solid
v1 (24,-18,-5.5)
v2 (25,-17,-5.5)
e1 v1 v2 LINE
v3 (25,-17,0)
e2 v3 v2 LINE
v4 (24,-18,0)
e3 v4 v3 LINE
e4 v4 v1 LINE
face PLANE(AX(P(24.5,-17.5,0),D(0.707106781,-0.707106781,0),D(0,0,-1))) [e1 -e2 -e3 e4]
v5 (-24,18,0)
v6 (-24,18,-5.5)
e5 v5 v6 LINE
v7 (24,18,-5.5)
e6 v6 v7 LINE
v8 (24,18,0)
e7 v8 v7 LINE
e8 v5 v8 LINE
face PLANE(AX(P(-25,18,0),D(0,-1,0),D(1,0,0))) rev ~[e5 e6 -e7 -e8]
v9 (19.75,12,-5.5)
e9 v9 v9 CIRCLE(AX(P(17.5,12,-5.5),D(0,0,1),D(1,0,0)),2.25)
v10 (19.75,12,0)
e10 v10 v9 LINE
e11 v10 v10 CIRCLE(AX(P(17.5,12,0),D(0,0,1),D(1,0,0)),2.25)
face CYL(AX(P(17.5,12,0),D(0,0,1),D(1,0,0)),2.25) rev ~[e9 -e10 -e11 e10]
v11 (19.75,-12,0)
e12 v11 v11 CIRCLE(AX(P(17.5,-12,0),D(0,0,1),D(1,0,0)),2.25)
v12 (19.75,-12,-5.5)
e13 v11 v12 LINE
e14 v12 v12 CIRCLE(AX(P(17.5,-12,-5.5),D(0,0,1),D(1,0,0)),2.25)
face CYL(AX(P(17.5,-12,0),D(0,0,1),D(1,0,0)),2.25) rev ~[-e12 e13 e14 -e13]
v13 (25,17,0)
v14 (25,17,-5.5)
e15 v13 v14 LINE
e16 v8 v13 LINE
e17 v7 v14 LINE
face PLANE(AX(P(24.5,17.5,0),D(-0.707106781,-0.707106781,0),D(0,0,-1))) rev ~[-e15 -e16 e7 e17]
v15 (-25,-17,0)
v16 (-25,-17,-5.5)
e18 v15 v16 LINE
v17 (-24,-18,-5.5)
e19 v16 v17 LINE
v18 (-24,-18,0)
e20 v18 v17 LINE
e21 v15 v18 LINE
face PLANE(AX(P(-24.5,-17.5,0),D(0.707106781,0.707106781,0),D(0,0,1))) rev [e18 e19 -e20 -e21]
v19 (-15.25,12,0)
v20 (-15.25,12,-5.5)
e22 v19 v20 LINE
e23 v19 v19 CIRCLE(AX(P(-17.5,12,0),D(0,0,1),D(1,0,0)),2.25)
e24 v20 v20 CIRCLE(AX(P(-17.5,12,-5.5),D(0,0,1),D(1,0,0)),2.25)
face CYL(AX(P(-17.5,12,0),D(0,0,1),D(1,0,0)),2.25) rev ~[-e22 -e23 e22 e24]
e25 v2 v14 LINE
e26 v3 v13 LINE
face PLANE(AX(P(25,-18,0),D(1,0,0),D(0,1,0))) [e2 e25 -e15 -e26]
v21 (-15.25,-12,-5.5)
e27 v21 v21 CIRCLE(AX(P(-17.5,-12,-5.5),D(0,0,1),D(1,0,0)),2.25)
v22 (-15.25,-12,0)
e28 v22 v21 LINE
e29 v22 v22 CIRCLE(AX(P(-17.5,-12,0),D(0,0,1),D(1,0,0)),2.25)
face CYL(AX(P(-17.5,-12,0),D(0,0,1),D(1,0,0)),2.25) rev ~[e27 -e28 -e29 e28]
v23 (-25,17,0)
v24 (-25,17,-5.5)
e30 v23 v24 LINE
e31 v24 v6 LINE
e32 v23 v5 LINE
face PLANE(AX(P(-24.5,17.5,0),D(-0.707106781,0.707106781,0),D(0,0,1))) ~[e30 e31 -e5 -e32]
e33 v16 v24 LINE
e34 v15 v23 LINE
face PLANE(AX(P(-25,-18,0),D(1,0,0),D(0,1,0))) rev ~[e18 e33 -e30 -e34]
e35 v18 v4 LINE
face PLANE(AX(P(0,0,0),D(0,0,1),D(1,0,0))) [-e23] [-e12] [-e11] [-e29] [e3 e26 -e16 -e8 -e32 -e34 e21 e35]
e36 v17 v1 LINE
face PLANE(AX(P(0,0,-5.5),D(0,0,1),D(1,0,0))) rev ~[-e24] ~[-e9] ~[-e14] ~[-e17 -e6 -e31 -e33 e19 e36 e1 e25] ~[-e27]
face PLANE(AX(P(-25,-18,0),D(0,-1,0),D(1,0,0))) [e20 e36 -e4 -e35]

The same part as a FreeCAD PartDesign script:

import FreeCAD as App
import Part
import Sketcher

V = App.Vector
Q = App.Units.Quantity


def edges_at(feature, points):
    """Names of the edges that pass closest to the given points."""
    edges = feature.Shape.Edges
    near = lambda p: min(range(len(edges)), key=lambda i: edges[i].distToShape(Part.Vertex(*p))[0])
    return sorted({f"Edge{near(p) + 1}" for p in points})

doc = App.newDocument("Part")
body = doc.addObject("PartDesign::Body", "Body")

# Sketch on XY plane
sketch1 = body.newObject("Sketcher::SketchObject", "Sketch")
sketch1.AttachmentSupport = (doc.getObject("XY_Plane"), [""])
sketch1.MapMode = "FlatFace"
sketch1.addGeometry([
    Part.LineSegment(V(-25, 18, 0), V(-25, -18, 0)),
    Part.LineSegment(V(-25, -18, 0), V(25, -18, 0)),
    Part.LineSegment(V(25, -18, 0), V(25, 18, 0)),
    Part.LineSegment(V(25, 18, 0), V(-25, 18, 0)),
], False)
sketch1.addConstraint([
    Sketcher.Constraint("Coincident", 0, 2, 1, 1),
    Sketcher.Constraint("Coincident", 1, 2, 2, 1),
    Sketcher.Constraint("Coincident", 2, 2, 3, 1),
    Sketcher.Constraint("Coincident", 3, 2, 0, 1),
    Sketcher.Constraint("Vertical", 0),
    Sketcher.Constraint("Horizontal", 1),
    Sketcher.Constraint("Vertical", 2),
    Sketcher.Constraint("Horizontal", 3),
    Sketcher.Constraint("Symmetric", 0, 2, 2, 2, -1, 1),
    Sketcher.Constraint("DistanceX", 1, 1, 1, 2, Q("50 mm")),
    Sketcher.Constraint("DistanceY", 0, 2, 0, 1, Q("36 mm")),
])
pad1 = body.newObject("PartDesign::Pad", "Pad")
pad1.Profile = sketch1
pad1.Length = 5.5
pad1.Reversed = True

# Sketch on XY plane
sketch2 = body.newObject("Sketcher::SketchObject", "Sketch001")
sketch2.AttachmentSupport = (doc.getObject("XY_Plane"), [""])
sketch2.MapMode = "FlatFace"
sketch2.addGeometry([
    Part.Circle(V(-17.5, 12, 0), V(0, 0, 1), 2.2),
    Part.Circle(V(17.5, 12, 0), V(0, 0, 1), 2.2),
    Part.Circle(V(17.5, -12, 0), V(0, 0, 1), 2.2),
    Part.Circle(V(-17.5, -12, 0), V(0, 0, 1), 2.2),
], False)
sketch2.addConstraint([
    Sketcher.Constraint("Equal", 0, 1),
    Sketcher.Constraint("Equal", 1, 2),
    Sketcher.Constraint("Equal", 2, 3),
    Sketcher.Constraint("Symmetric", 0, 3, 2, 3, -1, 1),
    Sketcher.Constraint("Symmetric", 1, 3, 3, 3, -1, 1),
    Sketcher.Constraint("Symmetric", 0, 3, 1, 3, -2),
    Sketcher.Constraint("Diameter", 0, Q("4.5 mm")),
    Sketcher.Constraint("DistanceY", -1, 1, 0, 3, Q("12 mm")),
    Sketcher.Constraint("DistanceX", 0, 3, 1, 3, Q("35 mm")),
])
pocket1 = body.newObject("PartDesign::Pocket", "Pocket")
pocket1.Profile = sketch2
pocket1.Length = 25
doc.recompute()

chamfer = body.newObject("PartDesign::Chamfer", "Chamfer")
chamfer.Base = (pocket1, edges_at(pocket1, [
    (-25, -18, -2.75),
    (25, -18, -2.75),
    (-25, 18, -2.75),
    (25, 18, -2.75),
]))
chamfer.Size = 1

doc.recompute()
